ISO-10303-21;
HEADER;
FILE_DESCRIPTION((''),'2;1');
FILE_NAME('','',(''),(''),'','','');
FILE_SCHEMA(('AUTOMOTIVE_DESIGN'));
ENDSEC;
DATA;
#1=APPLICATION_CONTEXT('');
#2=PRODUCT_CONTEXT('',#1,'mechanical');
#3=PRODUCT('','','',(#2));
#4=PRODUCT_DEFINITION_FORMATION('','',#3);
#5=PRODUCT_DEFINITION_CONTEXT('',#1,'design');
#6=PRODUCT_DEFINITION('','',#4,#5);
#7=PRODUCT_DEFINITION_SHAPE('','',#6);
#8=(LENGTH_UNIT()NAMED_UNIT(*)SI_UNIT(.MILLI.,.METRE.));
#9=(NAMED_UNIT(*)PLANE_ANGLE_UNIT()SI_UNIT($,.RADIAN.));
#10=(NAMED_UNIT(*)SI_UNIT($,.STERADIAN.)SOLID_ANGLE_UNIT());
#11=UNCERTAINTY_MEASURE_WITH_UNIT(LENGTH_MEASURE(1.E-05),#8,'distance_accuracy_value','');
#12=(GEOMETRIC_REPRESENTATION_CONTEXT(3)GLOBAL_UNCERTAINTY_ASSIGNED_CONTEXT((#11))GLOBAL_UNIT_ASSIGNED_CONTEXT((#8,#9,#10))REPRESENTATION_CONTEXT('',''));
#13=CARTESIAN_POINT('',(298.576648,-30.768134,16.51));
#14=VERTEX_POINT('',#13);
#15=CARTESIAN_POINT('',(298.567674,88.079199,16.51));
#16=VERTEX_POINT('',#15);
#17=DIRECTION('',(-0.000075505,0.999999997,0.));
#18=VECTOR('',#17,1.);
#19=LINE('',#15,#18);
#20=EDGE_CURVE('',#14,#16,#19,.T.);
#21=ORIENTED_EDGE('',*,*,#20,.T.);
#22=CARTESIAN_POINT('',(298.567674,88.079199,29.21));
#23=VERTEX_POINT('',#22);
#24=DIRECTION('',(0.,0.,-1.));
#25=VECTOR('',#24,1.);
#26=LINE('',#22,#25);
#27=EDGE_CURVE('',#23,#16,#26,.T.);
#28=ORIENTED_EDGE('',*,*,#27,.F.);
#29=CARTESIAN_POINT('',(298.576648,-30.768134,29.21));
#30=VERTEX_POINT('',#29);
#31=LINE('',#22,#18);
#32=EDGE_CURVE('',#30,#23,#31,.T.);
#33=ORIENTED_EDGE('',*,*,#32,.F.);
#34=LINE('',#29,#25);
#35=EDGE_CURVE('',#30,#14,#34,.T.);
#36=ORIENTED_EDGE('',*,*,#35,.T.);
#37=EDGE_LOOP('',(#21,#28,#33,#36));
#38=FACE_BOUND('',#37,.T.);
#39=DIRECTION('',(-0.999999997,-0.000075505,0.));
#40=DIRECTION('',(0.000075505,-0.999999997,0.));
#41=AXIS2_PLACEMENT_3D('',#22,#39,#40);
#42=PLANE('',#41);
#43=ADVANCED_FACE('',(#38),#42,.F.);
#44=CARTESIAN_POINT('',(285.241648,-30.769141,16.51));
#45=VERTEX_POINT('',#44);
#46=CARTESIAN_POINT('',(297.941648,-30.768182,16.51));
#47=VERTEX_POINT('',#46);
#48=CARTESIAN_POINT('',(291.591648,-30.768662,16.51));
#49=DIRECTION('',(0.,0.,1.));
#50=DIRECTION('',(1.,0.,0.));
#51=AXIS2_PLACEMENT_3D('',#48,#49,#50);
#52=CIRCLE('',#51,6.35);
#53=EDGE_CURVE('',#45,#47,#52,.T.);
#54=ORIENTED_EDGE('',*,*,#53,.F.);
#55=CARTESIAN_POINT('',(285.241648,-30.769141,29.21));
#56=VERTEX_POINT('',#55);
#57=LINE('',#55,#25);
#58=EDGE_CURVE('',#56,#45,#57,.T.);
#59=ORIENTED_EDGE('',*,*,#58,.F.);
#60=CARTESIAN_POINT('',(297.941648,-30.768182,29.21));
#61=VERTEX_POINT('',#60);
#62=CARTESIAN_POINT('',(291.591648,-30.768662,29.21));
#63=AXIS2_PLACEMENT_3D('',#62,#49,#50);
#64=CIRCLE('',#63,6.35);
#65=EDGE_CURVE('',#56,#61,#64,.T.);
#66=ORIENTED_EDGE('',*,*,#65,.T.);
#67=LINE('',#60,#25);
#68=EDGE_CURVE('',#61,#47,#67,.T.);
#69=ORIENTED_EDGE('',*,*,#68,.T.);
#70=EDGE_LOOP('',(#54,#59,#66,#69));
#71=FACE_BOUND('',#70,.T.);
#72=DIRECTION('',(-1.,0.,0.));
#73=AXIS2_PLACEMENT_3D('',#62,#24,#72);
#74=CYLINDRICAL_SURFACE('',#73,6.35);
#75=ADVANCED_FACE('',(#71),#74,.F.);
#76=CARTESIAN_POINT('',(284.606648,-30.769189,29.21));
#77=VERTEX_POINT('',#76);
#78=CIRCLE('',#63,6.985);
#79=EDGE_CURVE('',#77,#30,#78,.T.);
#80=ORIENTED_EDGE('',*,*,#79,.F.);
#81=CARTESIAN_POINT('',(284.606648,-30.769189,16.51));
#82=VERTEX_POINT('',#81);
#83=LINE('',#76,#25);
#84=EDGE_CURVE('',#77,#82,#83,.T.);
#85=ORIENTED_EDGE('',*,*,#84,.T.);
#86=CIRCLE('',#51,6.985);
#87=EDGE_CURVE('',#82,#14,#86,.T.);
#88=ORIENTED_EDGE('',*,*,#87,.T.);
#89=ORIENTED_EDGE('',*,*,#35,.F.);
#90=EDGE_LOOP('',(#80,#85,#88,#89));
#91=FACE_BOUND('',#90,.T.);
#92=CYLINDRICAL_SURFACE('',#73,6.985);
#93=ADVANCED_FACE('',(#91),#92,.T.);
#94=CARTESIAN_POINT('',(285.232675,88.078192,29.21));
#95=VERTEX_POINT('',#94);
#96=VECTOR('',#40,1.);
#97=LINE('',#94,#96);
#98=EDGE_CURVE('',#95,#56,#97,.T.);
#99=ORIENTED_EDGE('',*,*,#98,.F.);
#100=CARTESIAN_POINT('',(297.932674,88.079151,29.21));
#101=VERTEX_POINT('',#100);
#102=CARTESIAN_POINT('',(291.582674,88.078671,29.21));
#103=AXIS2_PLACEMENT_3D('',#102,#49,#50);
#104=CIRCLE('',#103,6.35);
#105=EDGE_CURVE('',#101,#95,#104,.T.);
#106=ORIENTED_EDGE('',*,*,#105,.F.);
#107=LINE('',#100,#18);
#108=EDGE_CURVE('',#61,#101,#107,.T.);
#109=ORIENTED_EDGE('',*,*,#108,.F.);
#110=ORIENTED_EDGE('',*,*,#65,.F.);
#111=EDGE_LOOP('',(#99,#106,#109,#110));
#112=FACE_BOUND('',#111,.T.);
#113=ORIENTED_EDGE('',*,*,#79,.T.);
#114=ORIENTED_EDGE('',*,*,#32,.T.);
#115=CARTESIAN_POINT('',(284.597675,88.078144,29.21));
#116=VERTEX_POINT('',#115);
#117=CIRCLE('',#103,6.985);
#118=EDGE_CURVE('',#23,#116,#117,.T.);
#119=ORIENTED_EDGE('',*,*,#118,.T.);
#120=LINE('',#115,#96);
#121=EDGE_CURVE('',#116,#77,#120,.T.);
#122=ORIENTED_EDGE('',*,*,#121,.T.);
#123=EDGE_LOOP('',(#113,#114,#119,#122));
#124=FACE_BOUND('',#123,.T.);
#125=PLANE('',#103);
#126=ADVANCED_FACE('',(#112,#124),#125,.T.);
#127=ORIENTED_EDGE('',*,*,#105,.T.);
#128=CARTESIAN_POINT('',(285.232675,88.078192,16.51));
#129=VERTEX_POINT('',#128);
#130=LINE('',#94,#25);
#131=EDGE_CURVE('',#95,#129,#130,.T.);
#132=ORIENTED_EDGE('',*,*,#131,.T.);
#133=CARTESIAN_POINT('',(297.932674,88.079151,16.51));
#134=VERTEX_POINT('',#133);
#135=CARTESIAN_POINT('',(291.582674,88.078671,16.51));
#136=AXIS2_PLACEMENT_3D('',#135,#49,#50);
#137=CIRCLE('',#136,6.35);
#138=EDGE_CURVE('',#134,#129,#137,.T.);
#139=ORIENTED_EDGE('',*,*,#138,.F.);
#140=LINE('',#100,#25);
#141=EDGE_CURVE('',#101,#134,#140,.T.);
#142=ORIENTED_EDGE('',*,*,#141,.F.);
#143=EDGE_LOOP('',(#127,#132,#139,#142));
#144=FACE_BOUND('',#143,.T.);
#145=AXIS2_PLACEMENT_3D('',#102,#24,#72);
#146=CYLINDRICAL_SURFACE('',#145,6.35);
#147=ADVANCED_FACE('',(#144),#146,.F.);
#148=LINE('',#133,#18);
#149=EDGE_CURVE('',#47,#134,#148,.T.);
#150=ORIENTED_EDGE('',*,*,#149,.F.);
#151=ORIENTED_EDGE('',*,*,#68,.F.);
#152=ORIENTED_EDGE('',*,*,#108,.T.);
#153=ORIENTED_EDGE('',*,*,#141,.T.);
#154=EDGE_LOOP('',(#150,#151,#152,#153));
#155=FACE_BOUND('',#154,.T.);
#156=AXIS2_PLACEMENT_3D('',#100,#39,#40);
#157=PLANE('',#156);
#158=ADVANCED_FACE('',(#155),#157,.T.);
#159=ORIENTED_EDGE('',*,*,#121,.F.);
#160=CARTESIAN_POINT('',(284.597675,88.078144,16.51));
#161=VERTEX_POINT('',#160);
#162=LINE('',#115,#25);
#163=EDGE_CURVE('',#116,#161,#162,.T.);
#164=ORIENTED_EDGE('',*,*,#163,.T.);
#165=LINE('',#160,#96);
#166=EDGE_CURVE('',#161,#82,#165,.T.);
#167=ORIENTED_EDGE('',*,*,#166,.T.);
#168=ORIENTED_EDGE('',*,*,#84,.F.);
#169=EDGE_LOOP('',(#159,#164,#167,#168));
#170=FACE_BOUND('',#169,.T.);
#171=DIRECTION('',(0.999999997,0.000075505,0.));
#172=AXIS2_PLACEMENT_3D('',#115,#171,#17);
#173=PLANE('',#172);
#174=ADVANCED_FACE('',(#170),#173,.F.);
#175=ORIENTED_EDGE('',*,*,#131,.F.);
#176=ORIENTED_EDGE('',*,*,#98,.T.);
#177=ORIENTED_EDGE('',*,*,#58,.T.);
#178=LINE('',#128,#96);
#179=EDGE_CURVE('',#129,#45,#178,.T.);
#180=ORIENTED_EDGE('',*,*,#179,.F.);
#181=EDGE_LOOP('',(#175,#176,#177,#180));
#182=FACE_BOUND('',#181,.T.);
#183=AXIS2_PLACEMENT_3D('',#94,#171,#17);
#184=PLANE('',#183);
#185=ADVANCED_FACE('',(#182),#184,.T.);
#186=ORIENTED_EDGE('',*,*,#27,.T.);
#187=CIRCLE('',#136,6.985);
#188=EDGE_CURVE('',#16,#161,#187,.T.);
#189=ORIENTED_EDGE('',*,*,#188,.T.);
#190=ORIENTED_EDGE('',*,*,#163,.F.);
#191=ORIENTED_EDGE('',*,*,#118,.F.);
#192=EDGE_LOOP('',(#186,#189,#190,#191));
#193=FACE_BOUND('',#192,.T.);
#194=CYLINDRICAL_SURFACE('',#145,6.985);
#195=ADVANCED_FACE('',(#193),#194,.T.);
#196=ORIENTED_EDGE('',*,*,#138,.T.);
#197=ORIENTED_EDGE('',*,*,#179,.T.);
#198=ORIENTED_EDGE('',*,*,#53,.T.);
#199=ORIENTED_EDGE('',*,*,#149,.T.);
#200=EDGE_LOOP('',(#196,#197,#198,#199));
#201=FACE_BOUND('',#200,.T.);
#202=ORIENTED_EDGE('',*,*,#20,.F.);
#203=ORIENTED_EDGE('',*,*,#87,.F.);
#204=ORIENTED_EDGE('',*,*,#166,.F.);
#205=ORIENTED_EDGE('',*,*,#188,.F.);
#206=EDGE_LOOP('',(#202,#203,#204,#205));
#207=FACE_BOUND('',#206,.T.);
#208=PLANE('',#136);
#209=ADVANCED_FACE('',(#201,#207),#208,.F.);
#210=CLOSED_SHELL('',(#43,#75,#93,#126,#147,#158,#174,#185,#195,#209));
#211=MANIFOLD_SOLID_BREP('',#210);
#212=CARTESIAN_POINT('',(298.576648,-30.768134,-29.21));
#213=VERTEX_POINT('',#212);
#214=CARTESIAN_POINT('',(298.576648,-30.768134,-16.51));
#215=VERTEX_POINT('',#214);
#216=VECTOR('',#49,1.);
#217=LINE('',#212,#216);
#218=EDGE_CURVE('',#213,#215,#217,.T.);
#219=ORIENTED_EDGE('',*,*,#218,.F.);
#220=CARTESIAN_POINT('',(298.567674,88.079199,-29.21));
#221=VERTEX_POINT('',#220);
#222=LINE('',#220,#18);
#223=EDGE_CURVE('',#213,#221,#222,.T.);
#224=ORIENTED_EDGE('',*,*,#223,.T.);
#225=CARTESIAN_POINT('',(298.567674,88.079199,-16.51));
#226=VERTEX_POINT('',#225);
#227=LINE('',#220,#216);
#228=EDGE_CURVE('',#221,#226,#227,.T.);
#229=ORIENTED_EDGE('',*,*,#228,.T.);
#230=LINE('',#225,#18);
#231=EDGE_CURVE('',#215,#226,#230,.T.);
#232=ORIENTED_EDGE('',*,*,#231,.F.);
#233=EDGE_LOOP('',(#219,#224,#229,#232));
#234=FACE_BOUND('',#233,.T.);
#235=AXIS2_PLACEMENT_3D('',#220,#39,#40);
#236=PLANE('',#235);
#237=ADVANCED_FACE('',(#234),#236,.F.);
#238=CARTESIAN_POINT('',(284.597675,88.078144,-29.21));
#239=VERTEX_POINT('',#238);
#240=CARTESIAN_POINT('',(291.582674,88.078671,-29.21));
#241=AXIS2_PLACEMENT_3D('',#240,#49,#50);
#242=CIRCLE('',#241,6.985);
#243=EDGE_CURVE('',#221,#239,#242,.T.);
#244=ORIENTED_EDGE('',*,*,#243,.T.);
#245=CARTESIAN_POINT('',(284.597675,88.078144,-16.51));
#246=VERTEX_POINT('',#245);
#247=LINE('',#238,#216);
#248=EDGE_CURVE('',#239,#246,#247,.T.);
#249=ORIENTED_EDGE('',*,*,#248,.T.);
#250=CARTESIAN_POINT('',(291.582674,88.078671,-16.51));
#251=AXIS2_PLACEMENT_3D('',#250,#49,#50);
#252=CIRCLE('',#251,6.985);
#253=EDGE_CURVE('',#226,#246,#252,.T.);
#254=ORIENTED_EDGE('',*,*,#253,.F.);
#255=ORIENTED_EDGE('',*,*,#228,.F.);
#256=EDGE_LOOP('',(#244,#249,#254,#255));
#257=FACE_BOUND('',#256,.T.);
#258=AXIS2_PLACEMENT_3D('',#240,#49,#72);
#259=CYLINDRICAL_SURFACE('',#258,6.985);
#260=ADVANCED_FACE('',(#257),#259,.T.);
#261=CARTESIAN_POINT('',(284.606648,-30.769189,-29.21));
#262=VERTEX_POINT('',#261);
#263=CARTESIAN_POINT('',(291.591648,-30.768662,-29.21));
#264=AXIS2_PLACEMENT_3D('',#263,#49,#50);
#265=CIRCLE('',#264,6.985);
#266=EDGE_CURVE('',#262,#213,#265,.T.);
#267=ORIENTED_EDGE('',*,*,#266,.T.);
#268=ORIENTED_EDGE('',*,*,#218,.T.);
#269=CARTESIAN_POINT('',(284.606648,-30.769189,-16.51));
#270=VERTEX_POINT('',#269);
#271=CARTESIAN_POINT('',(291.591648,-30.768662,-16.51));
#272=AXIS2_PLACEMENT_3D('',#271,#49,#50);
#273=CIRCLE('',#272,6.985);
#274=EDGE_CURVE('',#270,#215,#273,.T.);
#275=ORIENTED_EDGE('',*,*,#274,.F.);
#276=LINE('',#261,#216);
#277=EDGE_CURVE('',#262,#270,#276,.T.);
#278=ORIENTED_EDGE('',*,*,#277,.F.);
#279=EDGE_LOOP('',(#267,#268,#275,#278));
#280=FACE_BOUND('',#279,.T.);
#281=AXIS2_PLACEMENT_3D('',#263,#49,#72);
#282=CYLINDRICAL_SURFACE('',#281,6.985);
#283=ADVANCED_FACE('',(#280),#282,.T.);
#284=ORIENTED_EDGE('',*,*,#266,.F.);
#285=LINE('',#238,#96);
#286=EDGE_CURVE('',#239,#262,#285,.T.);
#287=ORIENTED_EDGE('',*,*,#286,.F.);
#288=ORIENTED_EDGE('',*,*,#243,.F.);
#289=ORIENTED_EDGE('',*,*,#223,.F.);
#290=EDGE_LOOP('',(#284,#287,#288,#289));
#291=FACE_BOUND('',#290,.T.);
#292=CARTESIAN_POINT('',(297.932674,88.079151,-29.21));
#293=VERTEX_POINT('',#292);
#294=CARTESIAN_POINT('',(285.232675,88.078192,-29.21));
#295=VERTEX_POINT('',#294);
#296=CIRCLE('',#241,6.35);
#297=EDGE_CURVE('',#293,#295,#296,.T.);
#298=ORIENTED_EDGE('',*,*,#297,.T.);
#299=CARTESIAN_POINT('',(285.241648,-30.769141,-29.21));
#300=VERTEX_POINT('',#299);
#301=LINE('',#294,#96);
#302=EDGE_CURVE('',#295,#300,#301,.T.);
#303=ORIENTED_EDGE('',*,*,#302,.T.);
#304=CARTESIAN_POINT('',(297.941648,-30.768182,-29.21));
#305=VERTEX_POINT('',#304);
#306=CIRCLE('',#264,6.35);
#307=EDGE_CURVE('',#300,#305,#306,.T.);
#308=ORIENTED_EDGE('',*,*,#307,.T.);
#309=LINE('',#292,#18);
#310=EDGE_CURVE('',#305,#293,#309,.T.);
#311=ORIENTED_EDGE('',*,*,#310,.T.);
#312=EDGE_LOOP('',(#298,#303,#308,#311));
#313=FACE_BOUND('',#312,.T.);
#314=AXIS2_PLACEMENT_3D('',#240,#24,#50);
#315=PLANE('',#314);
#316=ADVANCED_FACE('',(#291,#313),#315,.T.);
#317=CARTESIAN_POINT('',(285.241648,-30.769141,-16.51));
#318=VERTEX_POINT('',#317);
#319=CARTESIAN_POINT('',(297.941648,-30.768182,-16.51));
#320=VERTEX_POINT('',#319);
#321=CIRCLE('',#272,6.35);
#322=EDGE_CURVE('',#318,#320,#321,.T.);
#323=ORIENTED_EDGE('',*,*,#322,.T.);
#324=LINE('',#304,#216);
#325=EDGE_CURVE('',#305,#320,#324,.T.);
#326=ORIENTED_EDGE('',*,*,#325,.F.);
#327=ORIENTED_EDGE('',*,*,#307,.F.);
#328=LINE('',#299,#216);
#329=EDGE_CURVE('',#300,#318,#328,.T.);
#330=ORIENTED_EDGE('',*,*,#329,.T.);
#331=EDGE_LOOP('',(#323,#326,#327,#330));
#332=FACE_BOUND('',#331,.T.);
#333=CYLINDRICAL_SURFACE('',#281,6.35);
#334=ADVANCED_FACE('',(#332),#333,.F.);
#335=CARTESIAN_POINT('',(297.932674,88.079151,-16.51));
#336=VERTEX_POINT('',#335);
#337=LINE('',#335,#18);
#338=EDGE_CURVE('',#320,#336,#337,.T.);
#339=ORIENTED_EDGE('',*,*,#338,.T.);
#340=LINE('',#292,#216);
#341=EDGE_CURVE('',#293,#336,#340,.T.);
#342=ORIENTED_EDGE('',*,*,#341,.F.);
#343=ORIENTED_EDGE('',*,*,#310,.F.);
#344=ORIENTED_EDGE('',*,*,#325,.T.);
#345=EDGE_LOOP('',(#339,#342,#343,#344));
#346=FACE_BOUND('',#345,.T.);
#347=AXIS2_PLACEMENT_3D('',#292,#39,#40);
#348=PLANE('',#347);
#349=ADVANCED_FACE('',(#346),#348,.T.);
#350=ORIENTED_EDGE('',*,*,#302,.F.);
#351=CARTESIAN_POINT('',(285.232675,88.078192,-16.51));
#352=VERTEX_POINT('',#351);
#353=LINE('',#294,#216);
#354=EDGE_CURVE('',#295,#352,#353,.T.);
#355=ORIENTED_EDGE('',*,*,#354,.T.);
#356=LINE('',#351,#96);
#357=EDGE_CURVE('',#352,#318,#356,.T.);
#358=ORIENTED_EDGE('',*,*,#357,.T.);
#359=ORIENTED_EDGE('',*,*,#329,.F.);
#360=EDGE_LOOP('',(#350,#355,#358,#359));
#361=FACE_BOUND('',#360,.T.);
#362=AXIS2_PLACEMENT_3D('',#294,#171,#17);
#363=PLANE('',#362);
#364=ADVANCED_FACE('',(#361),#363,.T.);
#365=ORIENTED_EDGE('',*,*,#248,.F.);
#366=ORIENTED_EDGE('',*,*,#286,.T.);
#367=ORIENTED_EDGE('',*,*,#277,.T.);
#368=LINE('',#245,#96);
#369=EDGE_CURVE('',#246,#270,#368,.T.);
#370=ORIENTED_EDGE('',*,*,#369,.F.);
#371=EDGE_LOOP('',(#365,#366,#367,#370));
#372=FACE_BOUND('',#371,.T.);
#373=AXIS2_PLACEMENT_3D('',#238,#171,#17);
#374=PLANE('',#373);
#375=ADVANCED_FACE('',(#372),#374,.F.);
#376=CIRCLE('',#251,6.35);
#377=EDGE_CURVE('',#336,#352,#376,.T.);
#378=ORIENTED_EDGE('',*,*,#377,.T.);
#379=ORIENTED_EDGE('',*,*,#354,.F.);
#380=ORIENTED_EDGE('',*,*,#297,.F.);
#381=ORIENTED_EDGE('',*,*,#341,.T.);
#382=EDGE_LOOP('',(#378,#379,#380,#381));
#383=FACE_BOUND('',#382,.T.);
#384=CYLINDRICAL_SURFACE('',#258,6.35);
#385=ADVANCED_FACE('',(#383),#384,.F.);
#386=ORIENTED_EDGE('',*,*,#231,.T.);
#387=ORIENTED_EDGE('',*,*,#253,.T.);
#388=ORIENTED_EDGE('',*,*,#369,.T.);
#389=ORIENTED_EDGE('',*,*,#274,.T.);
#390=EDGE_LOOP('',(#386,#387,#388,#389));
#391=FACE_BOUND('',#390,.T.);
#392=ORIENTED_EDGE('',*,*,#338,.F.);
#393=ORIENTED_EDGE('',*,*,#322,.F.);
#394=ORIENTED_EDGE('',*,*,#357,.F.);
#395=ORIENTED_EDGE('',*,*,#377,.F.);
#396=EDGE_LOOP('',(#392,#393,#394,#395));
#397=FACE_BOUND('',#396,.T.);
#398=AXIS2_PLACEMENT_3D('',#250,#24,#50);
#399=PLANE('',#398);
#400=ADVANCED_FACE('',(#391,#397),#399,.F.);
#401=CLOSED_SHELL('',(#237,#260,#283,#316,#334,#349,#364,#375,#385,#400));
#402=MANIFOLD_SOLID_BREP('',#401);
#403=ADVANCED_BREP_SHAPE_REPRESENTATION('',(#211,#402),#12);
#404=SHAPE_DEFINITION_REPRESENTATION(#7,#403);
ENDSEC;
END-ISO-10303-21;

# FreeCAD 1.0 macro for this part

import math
import FreeCAD as App
import Part
import Sketcher
Q = App.Units.Quantity

doc = App.newDocument("Part")
params = doc.addObject("Spreadsheet::Sheet", "Params")
for row, (alias, value) in enumerate([
    ("sketch1_radius", "0.25 in"),
    ("sketch1_radius2", "0.275 in"),
    ("pad1_length", "0.5 in"),
], start=1):
    params.set(f"A{row}", alias)
    params.set(f"B{row}", "=" + value)
    params.setAlias(f"B{row}", alias)

body = doc.addObject("PartDesign::Body", "Body")

# Sketch on XY plane
sketch1 = body.newObject("Sketcher::SketchObject", "Sketch")
sketch1.AttachmentSupport = (doc.getObject("XY_Plane"), [""])
sketch1.MapMode = "FlatFace"
sketch1.AttachmentOffset = App.Placement(App.Vector(0, 0, 0.65 * 25.4), App.Rotation())
sketch1.addGeometry([
    Part.LineSegment(App.Vector(285, 88, 0), App.Vector(285, -31, 0)),  # 0
    Part.ArcOfCircle(Part.Circle(App.Vector(292, -31, 0), App.Vector(0, 0, 1), 7), math.radians(-180), math.radians(0)),  # 1
    Part.LineSegment(App.Vector(299, -31, 0), App.Vector(299, 88, 0)),  # 2
    Part.ArcOfCircle(Part.Circle(App.Vector(292, 88, 0), App.Vector(0, 0, 1), 7), math.radians(0), math.radians(180)),  # 3
    Part.LineSegment(App.Vector(285, -31, 0), App.Vector(285, 88, 0)),  # 4
    Part.ArcOfCircle(Part.Circle(App.Vector(292, 88, 0), App.Vector(0, 0, 1), 6), math.radians(0), math.radians(180)),  # 5
    Part.LineSegment(App.Vector(298, 88, 0), App.Vector(298, -31, 0)),  # 6
    Part.ArcOfCircle(Part.Circle(App.Vector(292, -31, 0), App.Vector(0, 0, 1), 6), math.radians(-180), math.radians(0)),  # 7
], False)
sketch1.addConstraint([
    Sketcher.Constraint("Tangent", 0, 2, 1, 1),
    Sketcher.Constraint("Tangent", 1, 2, 2, 1),
    Sketcher.Constraint("Tangent", 2, 2, 3, 1),
    Sketcher.Constraint("Tangent", 3, 2, 0, 1),
    Sketcher.Constraint("Tangent", 4, 2, 5, 2),
    Sketcher.Constraint("Tangent", 5, 1, 6, 1),
    Sketcher.Constraint("Tangent", 6, 2, 7, 2),
    Sketcher.Constraint("Tangent", 7, 1, 4, 1),
    Sketcher.Constraint("Coincident", 5, 3, 3, 3),
    Sketcher.Constraint("Coincident", 7, 3, 1, 3),
    Sketcher.Constraint("Equal", 1, 3),
    Sketcher.Constraint("Equal", 5, 7),
    Sketcher.Constraint("Radius", 5, Q("0.25 in")),
    Sketcher.Constraint("Radius", 1, Q("0.275 in")),
    Sketcher.Constraint("DistanceY", -1, 1, 2, 2, Q("88.079199 mm")),
    Sketcher.Constraint("DistanceX", -1, 1, 1, 3, Q("291.591648 mm")),
    Sketcher.Constraint("DistanceY", 1, 3, -1, 1, Q("30.768662 mm")),
    Sketcher.Constraint("DistanceY", -1, 1, 3, 3, Q("88.078671 mm")),
])
sketch1.setExpression("Constraints[12]", "Params.sketch1_radius")
sketch1.setExpression("Constraints[13]", "Params.sketch1_radius2")
pad1 = body.newObject("PartDesign::Pad", "Pad")
pad1.Profile = sketch1
pad1.setExpression("Length", "Params.pad1_length")
body2 = doc.addObject("PartDesign::Body", "Body001")
doc.recompute()

mirroring = doc.addObject("Part::Mirroring", "Mirroring")
mirroring.Source = body
mirroring.Base = App.Vector(0, 0, 0)
mirroring.Normal = App.Vector(0, 0, 1)
body2.BaseFeature = mirroring
doc.recompute()
mirroring.Visibility = False

doc.recompute()
